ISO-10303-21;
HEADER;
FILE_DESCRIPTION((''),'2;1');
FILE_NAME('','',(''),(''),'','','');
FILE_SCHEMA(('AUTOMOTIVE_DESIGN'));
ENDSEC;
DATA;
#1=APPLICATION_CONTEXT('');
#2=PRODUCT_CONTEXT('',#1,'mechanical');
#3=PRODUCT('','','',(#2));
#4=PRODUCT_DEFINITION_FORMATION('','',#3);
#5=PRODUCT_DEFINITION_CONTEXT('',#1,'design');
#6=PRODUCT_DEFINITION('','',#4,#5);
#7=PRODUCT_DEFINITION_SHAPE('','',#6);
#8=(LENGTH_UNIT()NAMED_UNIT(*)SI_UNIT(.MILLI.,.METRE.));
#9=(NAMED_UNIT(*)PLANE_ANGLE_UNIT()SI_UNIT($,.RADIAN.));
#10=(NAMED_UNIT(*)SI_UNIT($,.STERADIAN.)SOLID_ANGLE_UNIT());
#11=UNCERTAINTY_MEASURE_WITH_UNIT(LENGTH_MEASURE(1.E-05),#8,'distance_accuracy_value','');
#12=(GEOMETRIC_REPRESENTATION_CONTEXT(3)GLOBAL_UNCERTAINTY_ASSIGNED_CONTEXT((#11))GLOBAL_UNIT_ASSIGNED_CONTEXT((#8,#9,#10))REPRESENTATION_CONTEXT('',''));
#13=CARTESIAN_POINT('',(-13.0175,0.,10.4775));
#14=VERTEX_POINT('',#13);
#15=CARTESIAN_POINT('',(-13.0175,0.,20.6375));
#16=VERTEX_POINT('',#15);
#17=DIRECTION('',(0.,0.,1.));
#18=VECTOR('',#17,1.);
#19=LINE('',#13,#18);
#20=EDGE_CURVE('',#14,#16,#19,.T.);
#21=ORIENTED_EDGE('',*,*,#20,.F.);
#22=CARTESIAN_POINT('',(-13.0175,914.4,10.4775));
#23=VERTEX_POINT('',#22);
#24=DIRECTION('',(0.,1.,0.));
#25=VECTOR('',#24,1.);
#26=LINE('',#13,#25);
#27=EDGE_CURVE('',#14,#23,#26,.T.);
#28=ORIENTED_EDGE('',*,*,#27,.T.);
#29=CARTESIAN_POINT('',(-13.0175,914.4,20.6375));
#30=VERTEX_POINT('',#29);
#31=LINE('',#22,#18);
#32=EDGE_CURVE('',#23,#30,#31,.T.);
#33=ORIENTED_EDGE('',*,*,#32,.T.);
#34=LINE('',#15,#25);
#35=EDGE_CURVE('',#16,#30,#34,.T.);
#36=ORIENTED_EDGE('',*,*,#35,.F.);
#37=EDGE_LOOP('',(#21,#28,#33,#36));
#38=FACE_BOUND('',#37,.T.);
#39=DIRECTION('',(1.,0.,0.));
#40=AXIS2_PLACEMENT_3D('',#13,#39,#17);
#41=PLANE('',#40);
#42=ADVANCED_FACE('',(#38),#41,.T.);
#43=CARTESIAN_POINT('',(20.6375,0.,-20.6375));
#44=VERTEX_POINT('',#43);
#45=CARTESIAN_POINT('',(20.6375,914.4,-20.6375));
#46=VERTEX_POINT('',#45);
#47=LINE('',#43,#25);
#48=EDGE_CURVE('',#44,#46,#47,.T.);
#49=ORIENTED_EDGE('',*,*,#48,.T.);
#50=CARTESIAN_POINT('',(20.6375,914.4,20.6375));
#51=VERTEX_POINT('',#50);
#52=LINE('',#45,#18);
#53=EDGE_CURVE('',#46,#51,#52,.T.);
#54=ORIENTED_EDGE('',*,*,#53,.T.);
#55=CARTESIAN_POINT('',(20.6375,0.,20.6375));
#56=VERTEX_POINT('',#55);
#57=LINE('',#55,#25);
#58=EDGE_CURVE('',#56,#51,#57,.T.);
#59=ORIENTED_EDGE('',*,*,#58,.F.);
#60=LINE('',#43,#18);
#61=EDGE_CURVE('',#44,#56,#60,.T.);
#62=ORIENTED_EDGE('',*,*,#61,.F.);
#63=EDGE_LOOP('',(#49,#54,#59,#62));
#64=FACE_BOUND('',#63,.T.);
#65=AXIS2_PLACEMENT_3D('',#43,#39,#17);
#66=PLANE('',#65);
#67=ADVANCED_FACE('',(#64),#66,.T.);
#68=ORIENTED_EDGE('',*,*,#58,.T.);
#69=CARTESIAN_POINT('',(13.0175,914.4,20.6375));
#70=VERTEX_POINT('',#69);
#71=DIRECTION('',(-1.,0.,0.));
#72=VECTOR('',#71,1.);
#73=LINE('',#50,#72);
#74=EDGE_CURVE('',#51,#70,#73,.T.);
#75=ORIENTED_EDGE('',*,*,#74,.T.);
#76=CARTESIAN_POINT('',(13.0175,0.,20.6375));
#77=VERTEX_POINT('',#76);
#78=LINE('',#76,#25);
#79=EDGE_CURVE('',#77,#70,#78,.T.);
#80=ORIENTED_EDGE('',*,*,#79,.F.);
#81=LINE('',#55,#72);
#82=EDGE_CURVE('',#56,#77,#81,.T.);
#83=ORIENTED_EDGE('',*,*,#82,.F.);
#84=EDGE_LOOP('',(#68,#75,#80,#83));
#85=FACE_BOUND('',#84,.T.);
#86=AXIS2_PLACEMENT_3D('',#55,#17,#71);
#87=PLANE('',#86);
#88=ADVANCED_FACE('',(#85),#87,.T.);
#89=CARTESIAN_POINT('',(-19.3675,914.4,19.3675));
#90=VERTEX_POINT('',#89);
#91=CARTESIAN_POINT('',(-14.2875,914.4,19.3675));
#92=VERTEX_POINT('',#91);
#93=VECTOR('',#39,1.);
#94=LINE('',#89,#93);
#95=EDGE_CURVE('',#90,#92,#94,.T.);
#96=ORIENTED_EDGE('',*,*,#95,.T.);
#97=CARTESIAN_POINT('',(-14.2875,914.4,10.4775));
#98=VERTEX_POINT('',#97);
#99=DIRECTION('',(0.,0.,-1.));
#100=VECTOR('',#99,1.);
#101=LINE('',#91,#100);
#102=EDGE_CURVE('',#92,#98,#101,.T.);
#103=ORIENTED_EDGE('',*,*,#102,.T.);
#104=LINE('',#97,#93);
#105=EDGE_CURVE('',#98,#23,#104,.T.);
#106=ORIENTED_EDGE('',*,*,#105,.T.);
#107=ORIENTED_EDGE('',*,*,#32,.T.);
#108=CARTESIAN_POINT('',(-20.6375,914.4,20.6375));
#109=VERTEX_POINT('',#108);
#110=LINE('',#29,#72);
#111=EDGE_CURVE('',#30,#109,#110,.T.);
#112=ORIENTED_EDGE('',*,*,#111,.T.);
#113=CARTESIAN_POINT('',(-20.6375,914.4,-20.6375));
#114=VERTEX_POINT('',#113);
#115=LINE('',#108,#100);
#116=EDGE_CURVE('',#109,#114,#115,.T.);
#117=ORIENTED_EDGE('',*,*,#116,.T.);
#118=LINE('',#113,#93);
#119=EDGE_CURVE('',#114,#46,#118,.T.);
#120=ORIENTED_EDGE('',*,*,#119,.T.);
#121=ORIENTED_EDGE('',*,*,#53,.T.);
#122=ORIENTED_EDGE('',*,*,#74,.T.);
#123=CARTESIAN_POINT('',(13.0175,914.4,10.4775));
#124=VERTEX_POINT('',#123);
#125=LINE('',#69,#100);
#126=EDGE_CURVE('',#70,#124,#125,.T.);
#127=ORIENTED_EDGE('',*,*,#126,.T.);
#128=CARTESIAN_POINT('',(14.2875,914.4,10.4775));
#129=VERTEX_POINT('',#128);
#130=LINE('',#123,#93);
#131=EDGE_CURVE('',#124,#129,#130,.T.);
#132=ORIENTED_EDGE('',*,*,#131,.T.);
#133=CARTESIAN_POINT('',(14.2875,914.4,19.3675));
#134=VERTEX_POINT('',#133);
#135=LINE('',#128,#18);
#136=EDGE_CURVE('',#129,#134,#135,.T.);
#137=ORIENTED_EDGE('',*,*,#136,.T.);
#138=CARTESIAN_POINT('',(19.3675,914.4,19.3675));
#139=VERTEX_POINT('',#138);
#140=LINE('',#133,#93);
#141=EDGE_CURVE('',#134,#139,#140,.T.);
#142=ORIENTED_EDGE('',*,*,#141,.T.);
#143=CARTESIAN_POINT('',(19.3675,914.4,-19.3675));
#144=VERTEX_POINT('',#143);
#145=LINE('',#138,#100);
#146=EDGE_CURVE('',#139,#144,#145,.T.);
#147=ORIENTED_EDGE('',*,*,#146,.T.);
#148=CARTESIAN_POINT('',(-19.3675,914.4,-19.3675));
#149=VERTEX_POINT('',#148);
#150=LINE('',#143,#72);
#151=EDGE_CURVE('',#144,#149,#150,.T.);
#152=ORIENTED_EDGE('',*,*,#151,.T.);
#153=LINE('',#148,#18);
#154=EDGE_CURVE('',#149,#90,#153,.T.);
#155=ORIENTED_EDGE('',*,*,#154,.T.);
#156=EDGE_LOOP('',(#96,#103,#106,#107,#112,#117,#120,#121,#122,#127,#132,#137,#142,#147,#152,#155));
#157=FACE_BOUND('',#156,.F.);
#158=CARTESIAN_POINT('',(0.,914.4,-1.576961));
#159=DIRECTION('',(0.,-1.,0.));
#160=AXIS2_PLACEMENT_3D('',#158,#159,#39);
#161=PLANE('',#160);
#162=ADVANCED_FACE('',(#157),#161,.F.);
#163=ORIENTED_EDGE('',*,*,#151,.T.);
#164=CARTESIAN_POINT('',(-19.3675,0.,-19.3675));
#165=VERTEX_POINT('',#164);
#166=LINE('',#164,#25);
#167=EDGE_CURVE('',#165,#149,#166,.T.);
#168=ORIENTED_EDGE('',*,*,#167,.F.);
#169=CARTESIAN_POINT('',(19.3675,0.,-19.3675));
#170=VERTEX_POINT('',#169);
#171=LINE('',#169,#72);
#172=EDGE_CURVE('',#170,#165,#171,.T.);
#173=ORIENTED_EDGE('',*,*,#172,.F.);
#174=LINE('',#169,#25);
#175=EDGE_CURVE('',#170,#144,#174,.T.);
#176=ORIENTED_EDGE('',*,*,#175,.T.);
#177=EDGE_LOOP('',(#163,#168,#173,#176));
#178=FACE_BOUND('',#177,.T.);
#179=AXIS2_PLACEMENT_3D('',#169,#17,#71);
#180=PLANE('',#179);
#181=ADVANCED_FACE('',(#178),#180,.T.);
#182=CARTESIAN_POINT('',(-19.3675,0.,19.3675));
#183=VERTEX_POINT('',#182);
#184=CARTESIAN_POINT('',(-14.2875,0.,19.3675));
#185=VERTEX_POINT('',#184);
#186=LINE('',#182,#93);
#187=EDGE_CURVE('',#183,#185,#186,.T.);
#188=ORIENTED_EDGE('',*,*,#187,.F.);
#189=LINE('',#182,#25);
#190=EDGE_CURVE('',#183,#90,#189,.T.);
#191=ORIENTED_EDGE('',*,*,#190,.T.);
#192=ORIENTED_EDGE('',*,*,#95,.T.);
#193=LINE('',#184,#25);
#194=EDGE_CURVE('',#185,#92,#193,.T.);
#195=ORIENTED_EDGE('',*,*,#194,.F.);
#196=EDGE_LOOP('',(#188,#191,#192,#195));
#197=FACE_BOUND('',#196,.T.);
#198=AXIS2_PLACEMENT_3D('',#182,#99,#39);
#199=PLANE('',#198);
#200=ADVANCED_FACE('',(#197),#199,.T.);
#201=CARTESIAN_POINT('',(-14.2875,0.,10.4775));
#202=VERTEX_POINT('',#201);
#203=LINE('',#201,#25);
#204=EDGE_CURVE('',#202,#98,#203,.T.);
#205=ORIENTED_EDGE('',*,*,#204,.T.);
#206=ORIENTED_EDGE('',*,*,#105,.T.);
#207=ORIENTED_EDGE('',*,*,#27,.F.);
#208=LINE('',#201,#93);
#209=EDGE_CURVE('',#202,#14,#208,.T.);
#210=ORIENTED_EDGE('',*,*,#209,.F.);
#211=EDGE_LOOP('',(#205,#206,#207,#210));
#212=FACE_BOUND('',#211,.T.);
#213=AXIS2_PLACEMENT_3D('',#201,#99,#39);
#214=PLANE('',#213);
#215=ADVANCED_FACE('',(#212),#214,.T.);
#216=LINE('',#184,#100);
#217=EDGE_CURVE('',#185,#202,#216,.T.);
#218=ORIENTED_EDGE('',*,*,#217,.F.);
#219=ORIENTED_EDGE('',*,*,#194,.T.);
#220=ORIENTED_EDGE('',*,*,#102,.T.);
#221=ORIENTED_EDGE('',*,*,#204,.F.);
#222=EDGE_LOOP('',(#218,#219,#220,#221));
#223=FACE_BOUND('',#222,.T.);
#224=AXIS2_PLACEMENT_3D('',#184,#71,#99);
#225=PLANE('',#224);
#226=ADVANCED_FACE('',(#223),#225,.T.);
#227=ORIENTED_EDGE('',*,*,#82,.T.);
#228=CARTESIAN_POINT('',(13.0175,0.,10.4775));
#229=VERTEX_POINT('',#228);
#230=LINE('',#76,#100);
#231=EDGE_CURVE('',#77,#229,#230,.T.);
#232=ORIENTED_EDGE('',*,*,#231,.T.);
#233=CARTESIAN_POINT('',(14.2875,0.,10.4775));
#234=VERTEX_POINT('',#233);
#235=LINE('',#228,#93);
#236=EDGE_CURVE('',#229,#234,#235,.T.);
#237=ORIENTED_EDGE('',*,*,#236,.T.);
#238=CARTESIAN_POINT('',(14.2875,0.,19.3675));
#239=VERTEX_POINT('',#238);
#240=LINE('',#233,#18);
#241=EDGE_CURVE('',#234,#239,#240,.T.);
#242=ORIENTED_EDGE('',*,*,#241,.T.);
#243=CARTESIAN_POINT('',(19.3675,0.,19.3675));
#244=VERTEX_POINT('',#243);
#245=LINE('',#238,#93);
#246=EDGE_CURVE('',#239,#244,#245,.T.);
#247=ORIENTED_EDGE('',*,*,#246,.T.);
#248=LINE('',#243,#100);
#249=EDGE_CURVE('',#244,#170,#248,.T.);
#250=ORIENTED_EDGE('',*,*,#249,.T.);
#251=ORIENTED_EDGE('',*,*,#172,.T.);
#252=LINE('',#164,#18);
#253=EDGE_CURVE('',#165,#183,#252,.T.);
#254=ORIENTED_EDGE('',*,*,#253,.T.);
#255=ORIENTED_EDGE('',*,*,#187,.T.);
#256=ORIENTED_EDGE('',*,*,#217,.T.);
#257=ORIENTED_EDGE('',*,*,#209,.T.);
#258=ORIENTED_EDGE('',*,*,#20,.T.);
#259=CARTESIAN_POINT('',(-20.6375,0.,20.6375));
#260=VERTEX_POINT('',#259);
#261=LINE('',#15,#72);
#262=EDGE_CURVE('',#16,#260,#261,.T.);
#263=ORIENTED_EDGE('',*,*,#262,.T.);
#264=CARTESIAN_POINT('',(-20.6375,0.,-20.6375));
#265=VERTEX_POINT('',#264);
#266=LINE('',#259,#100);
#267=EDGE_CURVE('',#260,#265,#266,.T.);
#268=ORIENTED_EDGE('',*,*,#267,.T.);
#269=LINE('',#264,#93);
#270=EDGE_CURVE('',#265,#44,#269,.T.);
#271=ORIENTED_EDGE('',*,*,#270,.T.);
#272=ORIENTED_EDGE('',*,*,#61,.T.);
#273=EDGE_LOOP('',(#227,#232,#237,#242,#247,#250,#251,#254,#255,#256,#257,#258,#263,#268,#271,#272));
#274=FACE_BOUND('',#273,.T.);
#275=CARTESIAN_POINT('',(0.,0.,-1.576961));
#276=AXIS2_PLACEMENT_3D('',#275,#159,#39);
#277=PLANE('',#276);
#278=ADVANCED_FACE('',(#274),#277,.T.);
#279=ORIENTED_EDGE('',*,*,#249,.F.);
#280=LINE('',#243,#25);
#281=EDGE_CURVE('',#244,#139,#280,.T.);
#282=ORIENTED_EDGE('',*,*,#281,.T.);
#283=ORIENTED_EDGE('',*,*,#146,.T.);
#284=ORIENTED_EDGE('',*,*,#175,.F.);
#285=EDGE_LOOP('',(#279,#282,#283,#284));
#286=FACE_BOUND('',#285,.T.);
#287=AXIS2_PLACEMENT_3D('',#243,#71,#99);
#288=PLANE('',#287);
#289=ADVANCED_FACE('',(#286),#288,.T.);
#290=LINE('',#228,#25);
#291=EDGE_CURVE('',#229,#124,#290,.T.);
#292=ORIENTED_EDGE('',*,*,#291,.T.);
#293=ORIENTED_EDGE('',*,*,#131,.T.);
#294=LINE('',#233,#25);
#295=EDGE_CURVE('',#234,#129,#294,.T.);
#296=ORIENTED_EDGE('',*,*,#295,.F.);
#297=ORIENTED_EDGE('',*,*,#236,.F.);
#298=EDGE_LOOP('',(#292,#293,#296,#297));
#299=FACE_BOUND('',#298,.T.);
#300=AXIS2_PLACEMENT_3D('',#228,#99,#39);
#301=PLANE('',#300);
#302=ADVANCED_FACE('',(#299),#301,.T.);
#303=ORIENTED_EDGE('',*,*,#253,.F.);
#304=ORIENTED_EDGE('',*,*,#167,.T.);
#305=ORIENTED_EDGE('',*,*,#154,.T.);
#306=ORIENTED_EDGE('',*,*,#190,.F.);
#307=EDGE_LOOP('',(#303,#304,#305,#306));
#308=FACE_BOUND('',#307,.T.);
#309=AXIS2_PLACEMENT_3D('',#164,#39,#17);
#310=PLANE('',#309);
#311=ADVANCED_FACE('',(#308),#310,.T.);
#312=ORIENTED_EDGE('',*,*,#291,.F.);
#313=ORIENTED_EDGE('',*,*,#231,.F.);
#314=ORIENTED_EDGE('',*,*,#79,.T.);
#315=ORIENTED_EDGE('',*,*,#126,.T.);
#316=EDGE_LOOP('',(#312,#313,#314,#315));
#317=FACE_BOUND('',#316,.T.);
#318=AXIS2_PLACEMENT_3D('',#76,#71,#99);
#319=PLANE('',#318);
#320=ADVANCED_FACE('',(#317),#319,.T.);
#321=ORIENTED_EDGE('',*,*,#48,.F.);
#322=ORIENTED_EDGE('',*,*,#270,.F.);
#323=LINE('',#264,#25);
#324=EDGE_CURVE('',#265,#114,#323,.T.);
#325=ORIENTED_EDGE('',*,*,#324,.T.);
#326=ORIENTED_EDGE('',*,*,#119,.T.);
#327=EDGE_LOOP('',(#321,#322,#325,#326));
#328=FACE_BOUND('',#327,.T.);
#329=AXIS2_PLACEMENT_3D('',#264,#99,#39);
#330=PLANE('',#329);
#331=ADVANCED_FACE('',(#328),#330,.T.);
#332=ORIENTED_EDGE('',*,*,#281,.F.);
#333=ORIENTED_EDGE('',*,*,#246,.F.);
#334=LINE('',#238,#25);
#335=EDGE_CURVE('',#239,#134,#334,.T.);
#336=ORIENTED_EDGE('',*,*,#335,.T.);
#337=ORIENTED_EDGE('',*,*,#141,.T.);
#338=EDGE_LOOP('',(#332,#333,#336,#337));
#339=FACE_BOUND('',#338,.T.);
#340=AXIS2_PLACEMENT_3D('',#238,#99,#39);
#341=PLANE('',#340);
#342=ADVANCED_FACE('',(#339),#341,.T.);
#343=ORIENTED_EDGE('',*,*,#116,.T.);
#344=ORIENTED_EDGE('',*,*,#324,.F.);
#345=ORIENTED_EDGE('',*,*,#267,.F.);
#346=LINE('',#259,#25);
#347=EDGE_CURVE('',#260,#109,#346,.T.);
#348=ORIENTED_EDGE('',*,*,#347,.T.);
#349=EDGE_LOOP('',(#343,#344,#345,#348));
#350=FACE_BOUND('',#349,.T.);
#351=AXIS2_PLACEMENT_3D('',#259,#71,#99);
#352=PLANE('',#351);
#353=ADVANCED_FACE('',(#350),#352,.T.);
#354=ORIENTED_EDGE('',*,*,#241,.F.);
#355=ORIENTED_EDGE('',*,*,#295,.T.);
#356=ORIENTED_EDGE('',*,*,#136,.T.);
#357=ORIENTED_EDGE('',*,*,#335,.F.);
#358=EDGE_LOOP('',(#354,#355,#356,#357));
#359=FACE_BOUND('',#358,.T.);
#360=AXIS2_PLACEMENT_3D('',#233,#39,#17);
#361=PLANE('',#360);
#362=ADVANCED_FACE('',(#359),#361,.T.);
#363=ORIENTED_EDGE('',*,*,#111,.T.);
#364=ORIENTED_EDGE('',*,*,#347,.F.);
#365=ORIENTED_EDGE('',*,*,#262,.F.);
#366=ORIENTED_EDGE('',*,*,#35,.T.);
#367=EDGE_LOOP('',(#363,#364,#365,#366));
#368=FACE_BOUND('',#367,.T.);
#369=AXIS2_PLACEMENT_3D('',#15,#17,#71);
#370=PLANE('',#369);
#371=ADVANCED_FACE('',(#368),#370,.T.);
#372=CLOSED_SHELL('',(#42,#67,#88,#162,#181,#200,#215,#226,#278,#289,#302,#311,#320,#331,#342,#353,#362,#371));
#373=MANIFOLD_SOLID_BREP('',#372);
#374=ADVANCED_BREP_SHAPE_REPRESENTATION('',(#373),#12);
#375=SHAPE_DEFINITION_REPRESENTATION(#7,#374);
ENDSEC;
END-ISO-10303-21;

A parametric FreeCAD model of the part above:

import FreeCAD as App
import Part
import Sketcher

V = App.Vector
Q = App.Units.Quantity

doc = App.newDocument("Part")
body = doc.addObject("PartDesign::Body", "Body")

# Sketch on XZ plane
sketch1 = doc.addObject("Sketcher::SketchObject", "Sketch")
body.addObject(sketch1)
sketch1.AttachmentSupport = (doc.XZ_Plane, [""])
sketch1.MapMode = "FlatFace"
sketch1.addGeometry(Part.LineSegment(V(-13, 20.6, 0), V(-20.6, 20.6, 0)), False)
sketch1.addGeometry(Part.LineSegment(V(-20.6, 20.6, 0), V(-20.6, -20.6, 0)), False)
sketch1.addGeometry(Part.LineSegment(V(-20.6, -20.6, 0), V(20.6, -20.6, 0)), False)
sketch1.addGeometry(Part.LineSegment(V(20.6, -20.6, 0), V(20.6, 20.6, 0)), False)
sketch1.addGeometry(Part.LineSegment(V(20.6, 20.6, 0), V(13, 20.6, 0)), False)
sketch1.addGeometry(Part.LineSegment(V(13, 20.6, 0), V(13, 10.5, 0)), False)
sketch1.addGeometry(Part.LineSegment(V(13, 10.5, 0), V(14.3, 10.5, 0)), False)
sketch1.addGeometry(Part.LineSegment(V(14.3, 10.5, 0), V(14.3, 19.4, 0)), False)
sketch1.addGeometry(Part.LineSegment(V(14.3, 19.4, 0), V(19.4, 19.4, 0)), False)
sketch1.addGeometry(Part.LineSegment(V(19.4, 19.4, 0), V(19.4, -19.4, 0)), False)
sketch1.addGeometry(Part.LineSegment(V(19.4, -19.4, 0), V(-19.4, -19.4, 0)), False)
sketch1.addGeometry(Part.LineSegment(V(-19.4, -19.4, 0), V(-19.4, 19.4, 0)), False)
sketch1.addGeometry(Part.LineSegment(V(-19.4, 19.4, 0), V(-14.3, 19.4, 0)), False)
sketch1.addGeometry(Part.LineSegment(V(-14.3, 19.4, 0), V(-14.3, 10.5, 0)), False)
sketch1.addGeometry(Part.LineSegment(V(-14.3, 10.5, 0), V(-13, 10.5, 0)), False)
sketch1.addGeometry(Part.LineSegment(V(-13, 10.5, 0), V(-13, 20.6, 0)), False)
sketch1.addConstraint(Sketcher.Constraint("Coincident", 0, 2, 1, 1))
sketch1.addConstraint(Sketcher.Constraint("Coincident", 1, 2, 2, 1))
sketch1.addConstraint(Sketcher.Constraint("Coincident", 2, 2, 3, 1))
sketch1.addConstraint(Sketcher.Constraint("Coincident", 3, 2, 4, 1))
sketch1.addConstraint(Sketcher.Constraint("Coincident", 4, 2, 5, 1))
sketch1.addConstraint(Sketcher.Constraint("Coincident", 5, 2, 6, 1))
sketch1.addConstraint(Sketcher.Constraint("Coincident", 6, 2, 7, 1))
sketch1.addConstraint(Sketcher.Constraint("Coincident", 7, 2, 8, 1))
sketch1.addConstraint(Sketcher.Constraint("Coincident", 8, 2, 9, 1))
sketch1.addConstraint(Sketcher.Constraint("Coincident", 9, 2, 10, 1))
sketch1.addConstraint(Sketcher.Constraint("Coincident", 10, 2, 11, 1))
sketch1.addConstraint(Sketcher.Constraint("Coincident", 11, 2, 12, 1))
sketch1.addConstraint(Sketcher.Constraint("Coincident", 12, 2, 13, 1))
sketch1.addConstraint(Sketcher.Constraint("Coincident", 13, 2, 14, 1))
sketch1.addConstraint(Sketcher.Constraint("Coincident", 14, 2, 15, 1))
sketch1.addConstraint(Sketcher.Constraint("Coincident", 15, 2, 0, 1))
sketch1.addConstraint(Sketcher.Constraint("Horizontal", 0))
sketch1.addConstraint(Sketcher.Constraint("Vertical", 1))
sketch1.addConstraint(Sketcher.Constraint("Horizontal", 2))
sketch1.addConstraint(Sketcher.Constraint("Vertical", 3))
sketch1.addConstraint(Sketcher.Constraint("Horizontal", 4))
sketch1.addConstraint(Sketcher.Constraint("Vertical", 5))
sketch1.addConstraint(Sketcher.Constraint("Horizontal", 6))
sketch1.addConstraint(Sketcher.Constraint("Vertical", 7))
sketch1.addConstraint(Sketcher.Constraint("Horizontal", 8))
sketch1.addConstraint(Sketcher.Constraint("Vertical", 9))
sketch1.addConstraint(Sketcher.Constraint("Horizontal", 10))
sketch1.addConstraint(Sketcher.Constraint("Vertical", 11))
sketch1.addConstraint(Sketcher.Constraint("Horizontal", 12))
sketch1.addConstraint(Sketcher.Constraint("Vertical", 13))
sketch1.addConstraint(Sketcher.Constraint("Horizontal", 14))
sketch1.addConstraint(Sketcher.Constraint("Vertical", 15))
sketch1.addConstraint(Sketcher.Constraint("Symmetric", 0, 2, 2, 2, -1, 1))
sketch1.addConstraint(Sketcher.Constraint("Symmetric", 8, 2, 10, 2, -1, 1))
sketch1.addConstraint(Sketcher.Constraint("Symmetric", 7, 2, 12, 2, -2))
sketch1.addConstraint(Sketcher.Constraint("Symmetric", 5, 2, 14, 2, -2))
sketch1.addConstraint(Sketcher.Constraint("Horizontal", 0, 2, 3, 2))
sketch1.addConstraint(Sketcher.Constraint("Equal", 2, 1))
sketch1.addConstraint(Sketcher.Constraint("Equal", 10, 9))
sketch1.addConstraint(Sketcher.Constraint("DistanceX", 0, 2, 0, 1, Q("0.3 in")))
sketch1.addConstraint(Sketcher.Constraint("DistanceX", 8, 1, 8, 2, Q("0.2 in")))
sketch1.addConstraint(Sketcher.Constraint("DistanceY", 5, 2, 5, 1, Q("0.4 in")))
sketch1.addConstraint(Sketcher.Constraint("DistanceX", 6, 1, 6, 2, Q("0.05 in")))
sketch1.addConstraint(Sketcher.Constraint("DistanceX", 2, 1, 2, 2, Q("1.625 in")))
pad1 = doc.addObject("PartDesign::Pad", "Pad")
body.addObject(pad1)
pad1.Profile = sketch1
pad1.Length = Q("36 in")
pad1.Reversed = True

doc.recompute()
